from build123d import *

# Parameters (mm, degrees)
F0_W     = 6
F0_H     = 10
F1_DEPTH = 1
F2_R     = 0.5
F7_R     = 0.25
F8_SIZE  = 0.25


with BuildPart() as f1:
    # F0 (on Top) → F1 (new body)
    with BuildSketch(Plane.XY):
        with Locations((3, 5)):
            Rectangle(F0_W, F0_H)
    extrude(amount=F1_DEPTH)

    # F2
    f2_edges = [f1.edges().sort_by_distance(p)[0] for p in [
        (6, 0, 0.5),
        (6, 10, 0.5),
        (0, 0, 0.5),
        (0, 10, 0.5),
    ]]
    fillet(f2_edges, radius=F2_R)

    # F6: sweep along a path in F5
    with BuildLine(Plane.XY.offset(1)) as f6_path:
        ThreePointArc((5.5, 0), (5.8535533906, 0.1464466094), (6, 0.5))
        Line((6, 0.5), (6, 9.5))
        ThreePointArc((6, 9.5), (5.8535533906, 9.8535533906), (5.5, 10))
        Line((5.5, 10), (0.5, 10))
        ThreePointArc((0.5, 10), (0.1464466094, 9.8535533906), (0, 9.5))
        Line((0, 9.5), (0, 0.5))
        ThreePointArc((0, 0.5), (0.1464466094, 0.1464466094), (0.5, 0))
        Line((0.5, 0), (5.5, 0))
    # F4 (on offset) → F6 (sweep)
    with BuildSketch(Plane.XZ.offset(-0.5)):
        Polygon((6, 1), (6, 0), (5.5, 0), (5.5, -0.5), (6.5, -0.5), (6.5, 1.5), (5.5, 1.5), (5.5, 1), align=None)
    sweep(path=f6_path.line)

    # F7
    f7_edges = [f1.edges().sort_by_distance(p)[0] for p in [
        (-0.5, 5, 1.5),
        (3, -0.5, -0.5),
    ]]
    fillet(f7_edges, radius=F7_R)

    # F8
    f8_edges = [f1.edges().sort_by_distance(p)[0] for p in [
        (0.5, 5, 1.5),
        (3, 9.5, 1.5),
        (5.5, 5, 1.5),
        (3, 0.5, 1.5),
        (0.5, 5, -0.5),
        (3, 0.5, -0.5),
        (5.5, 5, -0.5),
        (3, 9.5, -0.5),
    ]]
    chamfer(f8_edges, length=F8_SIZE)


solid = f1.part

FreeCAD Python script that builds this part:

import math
import FreeCAD as App
import Part
import Sketcher
from FreeCAD import Vector


def edges_at(feature, points):
    """Names of the edges that pass closest to the given points."""
    edges = feature.Shape.Edges
    near = lambda p: min(range(len(edges)), key=lambda i: edges[i].distToShape(Part.Vertex(*p))[0])
    return sorted({f"Edge{near(p) + 1}" for p in points})

doc = App.newDocument("Part")
body = doc.addObject("PartDesign::Body", "Body")

# Sketch on XY plane
sketch1 = body.newObject("Sketcher::SketchObject", "Sketch")
sketch1.AttachmentSupport = (doc.getObject("XY_Plane"), [""])
sketch1.MapMode = "FlatFace"
sketch1.addGeometry(Part.LineSegment(Vector(0, 10, 0), Vector(0, 0, 0)), False)
sketch1.addGeometry(Part.LineSegment(Vector(0, 0, 0), Vector(6, 0, 0)), False)
sketch1.addGeometry(Part.LineSegment(Vector(6, 0, 0), Vector(6, 10, 0)), False)
sketch1.addGeometry(Part.LineSegment(Vector(6, 10, 0), Vector(0, 10, 0)), False)
sketch1.addConstraint(Sketcher.Constraint("Coincident", 0, 2, 1, 1))
sketch1.addConstraint(Sketcher.Constraint("Coincident", 1, 2, 2, 1))
sketch1.addConstraint(Sketcher.Constraint("Coincident", 2, 2, 3, 1))
sketch1.addConstraint(Sketcher.Constraint("Coincident", 3, 2, 0, 1))
sketch1.addConstraint(Sketcher.Constraint("Vertical", 0))
sketch1.addConstraint(Sketcher.Constraint("Horizontal", 1))
sketch1.addConstraint(Sketcher.Constraint("Vertical", 2))
sketch1.addConstraint(Sketcher.Constraint("Horizontal", 3))
sketch1.addConstraint(Sketcher.Constraint("Coincident", 0, 2, -1, 1))
sketch1.addConstraint(Sketcher.Constraint("DistanceX", 1, 1, 1, 2, 6.0))
sketch1.addConstraint(Sketcher.Constraint("DistanceY", 0, 2, 0, 1, 10.0))
pad1 = body.newObject("PartDesign::Pad", "Pad")
pad1.Profile = sketch1
pad1.Length = 1
doc.recompute()

fillet = body.newObject("PartDesign::Fillet", "Fillet")
fillet.Base = (pad1, edges_at(pad1, [
    (6, 0, 0.5),
    (6, 10, 0.5),
    (0, 0, 0.5),
    (0, 10, 0.5),
]))
fillet.Radius = 0.5

# Sketch on XZ plane
sketch2 = body.newObject("Sketcher::SketchObject", "Sketch001")
sketch2.AttachmentSupport = (doc.getObject("XZ_Plane"), [""])
sketch2.MapMode = "FlatFace"
sketch2.AttachmentOffset = App.Placement(Vector(0, 0, -0.5), App.Rotation())
sketch2.addGeometry(Part.LineSegment(Vector(6, 1, 0), Vector(6, 0, 0)), False)
sketch2.addGeometry(Part.LineSegment(Vector(6, 0, 0), Vector(5.5, 0, 0)), False)
sketch2.addGeometry(Part.LineSegment(Vector(5.5, 0, 0), Vector(5.5, -0.5, 0)), False)
sketch2.addGeometry(Part.LineSegment(Vector(5.5, -0.5, 0), Vector(6.5, -0.5, 0)), False)
sketch2.addGeometry(Part.LineSegment(Vector(6.5, -0.5, 0), Vector(6.5, 1.5, 0)), False)
sketch2.addGeometry(Part.LineSegment(Vector(6.5, 1.5, 0), Vector(5.5, 1.5, 0)), False)
sketch2.addGeometry(Part.LineSegment(Vector(5.5, 1.5, 0), Vector(5.5, 1, 0)), False)
sketch2.addGeometry(Part.LineSegment(Vector(5.5, 1, 0), Vector(6, 1, 0)), False)
sketch2.addConstraint(Sketcher.Constraint("Coincident", 0, 2, 1, 1))
sketch2.addConstraint(Sketcher.Constraint("Coincident", 1, 2, 2, 1))
sketch2.addConstraint(Sketcher.Constraint("Coincident", 2, 2, 3, 1))
sketch2.addConstraint(Sketcher.Constraint("Coincident", 3, 2, 4, 1))
sketch2.addConstraint(Sketcher.Constraint("Coincident", 4, 2, 5, 1))
sketch2.addConstraint(Sketcher.Constraint("Coincident", 5, 2, 6, 1))
sketch2.addConstraint(Sketcher.Constraint("Coincident", 6, 2, 7, 1))
sketch2.addConstraint(Sketcher.Constraint("Coincident", 7, 2, 0, 1))
sketch2.addConstraint(Sketcher.Constraint("Vertical", 0))
sketch2.addConstraint(Sketcher.Constraint("Horizontal", 1))
sketch2.addConstraint(Sketcher.Constraint("Vertical", 2))
sketch2.addConstraint(Sketcher.Constraint("Horizontal", 3))
sketch2.addConstraint(Sketcher.Constraint("Vertical", 4))
sketch2.addConstraint(Sketcher.Constraint("Horizontal", 5))
sketch2.addConstraint(Sketcher.Constraint("Vertical", 6))
sketch2.addConstraint(Sketcher.Constraint("Horizontal", 7))
sketch2.addConstraint(Sketcher.Constraint("PointOnObject", 0, 2, -1))
sketch2.addConstraint(Sketcher.Constraint("Vertical", 2, 2, 5, 2))
sketch2.addConstraint(Sketcher.Constraint("Equal", 5, 0))
sketch2.addConstraint(Sketcher.Constraint("Equal", 7, 2))
sketch2.addConstraint(Sketcher.Constraint("Equal", 2, 6))
sketch2.addConstraint(Sketcher.Constraint("DistanceX", 3, 1, 3, 2, 1.0))
sketch2.addConstraint(Sketcher.Constraint("DistanceY", 4, 1, 4, 2, 2.0))
sketch2.addConstraint(Sketcher.Constraint("DistanceX", -1, 1, 0, 2, 6.0))

# Sketch on XY plane
sketch3 = body.newObject("Sketcher::SketchObject", "Sketch002")
sketch3.AttachmentSupport = (doc.getObject("XY_Plane"), [""])
sketch3.MapMode = "FlatFace"
sketch3.AttachmentOffset = App.Placement(Vector(0, 0, 1), App.Rotation())
sketch3.addGeometry(Part.ArcOfCircle(Part.Circle(Vector(5.5, 0.5, 0), Vector(0, 0, 1), 0.5), math.radians(-90), math.radians(0)), False)
sketch3.addGeometry(Part.LineSegment(Vector(6, 0.5, 0), Vector(6, 9.5, 0)), False)
sketch3.addGeometry(Part.ArcOfCircle(Part.Circle(Vector(5.5, 9.5, 0), Vector(0, 0, 1), 0.5), math.radians(0), math.radians(90)), False)
sketch3.addGeometry(Part.LineSegment(Vector(5.5, 10, 0), Vector(0.5, 10, 0)), False)
sketch3.addGeometry(Part.ArcOfCircle(Part.Circle(Vector(0.5, 9.5, 0), Vector(0, 0, 1), 0.5), math.radians(90), math.radians(180)), False)
sketch3.addGeometry(Part.LineSegment(Vector(0, 9.5, 0), Vector(0, 0.5, 0)), False)
sketch3.addGeometry(Part.ArcOfCircle(Part.Circle(Vector(0.5, 0.5, 0), Vector(0, 0, 1), 0.5), math.radians(180), math.radians(270)), False)
sketch3.addGeometry(Part.LineSegment(Vector(0.5, 0, 0), Vector(5.5, 0, 0)), False)
sketch3.addConstraint(Sketcher.Constraint("Tangent", 0, 2, 1, 1))
sketch3.addConstraint(Sketcher.Constraint("Tangent", 1, 2, 2, 1))
sketch3.addConstraint(Sketcher.Constraint("Tangent", 2, 2, 3, 1))
sketch3.addConstraint(Sketcher.Constraint("Tangent", 3, 2, 4, 1))
sketch3.addConstraint(Sketcher.Constraint("Tangent", 4, 2, 5, 1))
sketch3.addConstraint(Sketcher.Constraint("Tangent", 5, 2, 6, 1))
sketch3.addConstraint(Sketcher.Constraint("Tangent", 6, 2, 7, 1))
sketch3.addConstraint(Sketcher.Constraint("Tangent", 7, 2, 0, 1))
sketch3.addConstraint(Sketcher.Constraint("Vertical", 1))
sketch3.addConstraint(Sketcher.Constraint("Horizontal", 3))
sketch3.addConstraint(Sketcher.Constraint("Vertical", 5))
sketch3.addConstraint(Sketcher.Constraint("Horizontal", 7))
sketch3.addConstraint(Sketcher.Constraint("Equal", 0, 2))
sketch3.addConstraint(Sketcher.Constraint("Equal", 2, 4))
sketch3.addConstraint(Sketcher.Constraint("Equal", 4, 6))
sketch3.addConstraint(Sketcher.Constraint("PointOnObject", 4, 2, -2))
sketch3.addConstraint(Sketcher.Constraint("PointOnObject", 6, 2, -1))
sketch3.addConstraint(Sketcher.Constraint("Radius", 0, 0.5))
sketch3.addConstraint(Sketcher.Constraint("DistanceX", 3, 2, 3, 1, 5.0))
sketch3.addConstraint(Sketcher.Constraint("DistanceY", 1, 1, 1, 2, 9.0))
doc.recompute()

additivepipe = body.newObject("PartDesign::AdditivePipe", "AdditivePipe")
additivepipe.Profile = sketch2
additivepipe.Spine = (sketch3, ["Edge1", "Edge2", "Edge3", "Edge4", "Edge5", "Edge6", "Edge7", "Edge8"])
doc.recompute()

fillet2 = body.newObject("PartDesign::Fillet", "Fillet001")
fillet2.Base = (additivepipe, edges_at(additivepipe, [(-0.5, 5, 1.5), (3, -0.5, -0.5)]))
fillet2.Radius = 0.25
doc.recompute()

chamfer = body.newObject("PartDesign::Chamfer", "Chamfer")
chamfer.Base = (fillet2, edges_at(fillet2, [
    (0.5, 5, 1.5),
    (3, 9.5, 1.5),
    (5.5, 5, 1.5),
    (3, 0.5, 1.5),
    (0.5, 5, -0.5),
    (3, 0.5, -0.5),
    (5.5, 5, -0.5),
    (3, 9.5, -0.5),
]))
chamfer.Size = 0.25

doc.recompute()
